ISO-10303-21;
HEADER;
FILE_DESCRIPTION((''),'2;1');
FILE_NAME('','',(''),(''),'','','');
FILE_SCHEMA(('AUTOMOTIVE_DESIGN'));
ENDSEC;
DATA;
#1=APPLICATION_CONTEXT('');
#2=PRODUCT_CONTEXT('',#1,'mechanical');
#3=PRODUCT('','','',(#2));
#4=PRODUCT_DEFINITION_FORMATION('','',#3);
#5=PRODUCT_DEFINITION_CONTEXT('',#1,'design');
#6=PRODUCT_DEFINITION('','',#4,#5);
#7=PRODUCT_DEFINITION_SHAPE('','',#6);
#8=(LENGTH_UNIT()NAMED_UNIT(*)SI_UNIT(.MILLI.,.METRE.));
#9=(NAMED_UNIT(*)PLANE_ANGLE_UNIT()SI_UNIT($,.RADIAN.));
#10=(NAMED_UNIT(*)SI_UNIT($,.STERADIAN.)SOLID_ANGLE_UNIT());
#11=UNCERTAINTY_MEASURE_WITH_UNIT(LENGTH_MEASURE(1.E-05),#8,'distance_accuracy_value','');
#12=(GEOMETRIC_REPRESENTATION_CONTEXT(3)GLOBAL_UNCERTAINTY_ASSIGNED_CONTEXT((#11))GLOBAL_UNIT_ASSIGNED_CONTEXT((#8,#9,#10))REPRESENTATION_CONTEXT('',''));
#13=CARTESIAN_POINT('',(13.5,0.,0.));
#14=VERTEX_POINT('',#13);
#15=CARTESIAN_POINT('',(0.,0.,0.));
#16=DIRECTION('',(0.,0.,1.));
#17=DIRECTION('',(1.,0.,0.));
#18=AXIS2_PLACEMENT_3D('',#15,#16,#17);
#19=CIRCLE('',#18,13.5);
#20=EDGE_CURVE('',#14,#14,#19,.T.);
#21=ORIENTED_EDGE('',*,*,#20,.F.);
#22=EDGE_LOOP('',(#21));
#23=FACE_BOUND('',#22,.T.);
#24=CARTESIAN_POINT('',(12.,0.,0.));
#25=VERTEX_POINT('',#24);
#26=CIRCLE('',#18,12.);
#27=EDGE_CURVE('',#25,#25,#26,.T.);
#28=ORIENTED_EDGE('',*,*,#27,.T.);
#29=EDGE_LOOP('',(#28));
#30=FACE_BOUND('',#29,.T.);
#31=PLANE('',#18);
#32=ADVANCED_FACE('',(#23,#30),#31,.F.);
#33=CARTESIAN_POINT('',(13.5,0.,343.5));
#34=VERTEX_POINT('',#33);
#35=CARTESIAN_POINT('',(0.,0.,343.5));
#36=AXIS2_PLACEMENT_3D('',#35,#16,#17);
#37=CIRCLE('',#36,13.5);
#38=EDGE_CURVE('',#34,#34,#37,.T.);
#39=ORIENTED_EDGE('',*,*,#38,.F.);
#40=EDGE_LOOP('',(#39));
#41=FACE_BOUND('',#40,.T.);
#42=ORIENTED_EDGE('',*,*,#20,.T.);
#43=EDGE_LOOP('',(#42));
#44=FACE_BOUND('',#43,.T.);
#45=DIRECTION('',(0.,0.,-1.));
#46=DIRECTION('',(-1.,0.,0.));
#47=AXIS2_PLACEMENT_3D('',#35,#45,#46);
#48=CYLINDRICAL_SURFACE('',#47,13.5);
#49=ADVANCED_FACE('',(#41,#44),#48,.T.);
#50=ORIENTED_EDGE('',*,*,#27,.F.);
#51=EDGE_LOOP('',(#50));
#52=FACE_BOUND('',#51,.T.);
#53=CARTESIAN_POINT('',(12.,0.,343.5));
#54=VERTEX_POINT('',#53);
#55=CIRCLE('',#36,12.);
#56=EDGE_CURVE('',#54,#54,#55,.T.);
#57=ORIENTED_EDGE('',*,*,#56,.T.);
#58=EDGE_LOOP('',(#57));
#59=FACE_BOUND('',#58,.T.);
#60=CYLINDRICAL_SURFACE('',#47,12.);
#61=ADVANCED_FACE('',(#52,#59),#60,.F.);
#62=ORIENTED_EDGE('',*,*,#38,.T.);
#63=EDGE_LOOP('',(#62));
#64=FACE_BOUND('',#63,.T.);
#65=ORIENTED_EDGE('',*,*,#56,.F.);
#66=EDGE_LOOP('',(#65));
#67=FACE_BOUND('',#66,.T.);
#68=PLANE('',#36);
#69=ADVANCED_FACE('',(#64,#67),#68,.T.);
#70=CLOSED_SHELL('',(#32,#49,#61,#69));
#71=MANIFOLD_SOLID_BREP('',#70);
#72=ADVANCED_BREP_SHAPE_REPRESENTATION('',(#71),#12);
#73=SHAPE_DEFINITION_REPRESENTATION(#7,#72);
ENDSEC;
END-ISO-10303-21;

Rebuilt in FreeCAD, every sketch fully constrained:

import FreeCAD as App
import Part
import Sketcher

V = App.Vector
Q = App.Units.Quantity

doc = App.newDocument("Part")
body = doc.addObject("PartDesign::Body", "Body")

sketch1 = doc.addObject("Sketcher::SketchObject", "Sketch")
body.addObject(sketch1)
sketch1.AttachmentSupport = (doc.XY_Plane, [""])
sketch1.MapMode = "FlatFace"
sketch1.addGeometry([
    Part.Circle(V(0, 0, 0), V(0, 0, 1), 14),
    Part.Circle(V(0, 0, 0), V(0, 0, 1), 12),
], False)
sketch1.addConstraint([
    Sketcher.Constraint("Coincident", 0, 3, -1, 1),
    Sketcher.Constraint("Coincident", 1, 3, -1, 1),
    Sketcher.Constraint("Diameter", 0, Q("27 mm")),
    Sketcher.Constraint("Diameter", 1, Q("24 mm")),
])
pad1 = doc.addObject("PartDesign::Pad", "Pad")
body.addObject(pad1)
pad1.Profile = sketch1
pad1.Length = 343.5

doc.recompute()
